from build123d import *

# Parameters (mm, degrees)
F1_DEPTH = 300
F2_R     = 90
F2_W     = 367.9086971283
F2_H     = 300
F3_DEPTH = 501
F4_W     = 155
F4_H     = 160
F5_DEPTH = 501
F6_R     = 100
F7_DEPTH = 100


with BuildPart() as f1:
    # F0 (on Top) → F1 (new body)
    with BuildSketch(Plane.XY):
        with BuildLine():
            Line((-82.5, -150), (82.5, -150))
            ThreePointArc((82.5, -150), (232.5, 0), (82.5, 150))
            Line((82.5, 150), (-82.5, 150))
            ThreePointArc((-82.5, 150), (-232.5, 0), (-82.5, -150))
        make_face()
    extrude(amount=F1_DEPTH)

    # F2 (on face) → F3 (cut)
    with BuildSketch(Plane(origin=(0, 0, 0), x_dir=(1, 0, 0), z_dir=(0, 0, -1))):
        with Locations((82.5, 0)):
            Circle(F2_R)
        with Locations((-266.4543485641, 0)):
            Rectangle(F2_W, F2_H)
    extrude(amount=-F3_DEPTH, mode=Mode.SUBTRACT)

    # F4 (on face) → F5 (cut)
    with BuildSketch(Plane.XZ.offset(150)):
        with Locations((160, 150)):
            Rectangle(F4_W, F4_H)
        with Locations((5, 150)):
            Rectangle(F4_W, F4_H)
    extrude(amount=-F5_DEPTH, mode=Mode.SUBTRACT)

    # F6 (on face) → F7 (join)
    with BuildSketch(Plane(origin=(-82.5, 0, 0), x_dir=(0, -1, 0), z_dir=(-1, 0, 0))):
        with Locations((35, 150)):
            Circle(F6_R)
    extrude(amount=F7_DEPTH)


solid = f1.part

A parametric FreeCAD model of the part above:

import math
import FreeCAD as App
import Part
import Sketcher

V = App.Vector

doc = App.newDocument("Part")
body = doc.addObject("PartDesign::Body", "Body")

sketch1 = body.newObject("Sketcher::SketchObject", "Sketch")
sketch1.AttachmentSupport = (doc.getObject("XY_Plane"), [""])
sketch1.MapMode = "FlatFace"
sketch1.addGeometry(Part.LineSegment(V(-82, -150, 0), V(82, -150, 0)), False)
sketch1.addGeometry(Part.ArcOfCircle(Part.Circle(V(82, 0, 0), V(0, 0, 1), 150), math.radians(-90), math.radians(90)), False)
sketch1.addGeometry(Part.LineSegment(V(82, 150, 0), V(-82, 150, 0)), False)
sketch1.addGeometry(Part.ArcOfCircle(Part.Circle(V(-82, 0, 0), V(0, 0, 1), 150), math.radians(90), math.radians(270)), False)
sketch1.addConstraint(Sketcher.Constraint("Tangent", 0, 2, 1, 1))
sketch1.addConstraint(Sketcher.Constraint("Tangent", 1, 2, 2, 1))
sketch1.addConstraint(Sketcher.Constraint("Tangent", 2, 2, 3, 1))
sketch1.addConstraint(Sketcher.Constraint("Tangent", 3, 2, 0, 1))
sketch1.addConstraint(Sketcher.Constraint("Horizontal", 0))
sketch1.addConstraint(Sketcher.Constraint("Horizontal", 2))
sketch1.addConstraint(Sketcher.Constraint("Symmetric", 1, 3, 3, 3, -1, 1))
sketch1.addConstraint(Sketcher.Constraint("Radius", 1, 150.0))
sketch1.addConstraint(Sketcher.Constraint("DistanceX", 0, 1, 0, 2, 165.0))
pad1 = body.newObject("PartDesign::Pad", "Pad")
pad1.Profile = sketch1
pad1.Length = 300

sketch2 = body.newObject("Sketcher::SketchObject", "Sketch001")
sketch2.AttachmentSupport = (doc.getObject("XY_Plane"), [""])
sketch2.MapMode = "FlatFace"
sketch2.addGeometry(Part.Circle(V(82, 0, 0), V(0, 0, 1), 90), False)
sketch2.addGeometry(Part.LineSegment(V(-450, -150, 0), V(-450, 150, 0)), False)
sketch2.addGeometry(Part.LineSegment(V(-450, 150, 0), V(-82, 150, 0)), False)
sketch2.addGeometry(Part.LineSegment(V(-82, 150, 0), V(-82, -150, 0)), False)
sketch2.addGeometry(Part.LineSegment(V(-82, -150, 0), V(-450, -150, 0)), False)
sketch2.addConstraint(Sketcher.Constraint("Coincident", 1, 2, 2, 1))
sketch2.addConstraint(Sketcher.Constraint("Coincident", 2, 2, 3, 1))
sketch2.addConstraint(Sketcher.Constraint("Coincident", 3, 2, 4, 1))
sketch2.addConstraint(Sketcher.Constraint("Coincident", 4, 2, 1, 1))
sketch2.addConstraint(Sketcher.Constraint("Vertical", 1))
sketch2.addConstraint(Sketcher.Constraint("Horizontal", 2))
sketch2.addConstraint(Sketcher.Constraint("Vertical", 3))
sketch2.addConstraint(Sketcher.Constraint("Horizontal", 4))
sketch2.addConstraint(Sketcher.Constraint("PointOnObject", 0, 3, -1))
sketch2.addConstraint(Sketcher.Constraint("Diameter", 0, 180.0))
sketch2.addConstraint(Sketcher.Constraint("DistanceY", 1, 1, 1, 2, 300.0))
sketch2.addConstraint(Sketcher.Constraint("DistanceY", -1, 1, 1, 2, 150.0))
sketch2.addConstraint(Sketcher.Constraint("DistanceX", 2, 2, 0, 3, 165.0))
sketch2.addConstraint(Sketcher.Constraint("DistanceX", -1, 1, 0, 3, 82.5))
sketch2.addConstraint(Sketcher.Constraint("DistanceX", 2, 1, 2, 2, 367.908697))
pocket1 = body.newObject("PartDesign::Pocket", "Pocket")
pocket1.Profile = sketch2
pocket1.Length = 501
pocket1.Reversed = True

sketch3 = body.newObject("Sketcher::SketchObject", "Sketch002")
sketch3.AttachmentSupport = (doc.getObject("XZ_Plane"), [""])
sketch3.MapMode = "FlatFace"
sketch3.AttachmentOffset = App.Placement(V(0, 0, 150), App.Rotation())
sketch3.addGeometry(Part.LineSegment(V(238, 70, 0), V(238, 230, 0)), False)
sketch3.addGeometry(Part.LineSegment(V(238, 230, 0), V(-72, 230, 0)), False)
sketch3.addGeometry(Part.LineSegment(V(-72, 230, 0), V(-72, 70, 0)), False)
sketch3.addGeometry(Part.LineSegment(V(-72, 70, 0), V(238, 70, 0)), False)
sketch3.addConstraint(Sketcher.Constraint("Coincident", 0, 2, 1, 1))
sketch3.addConstraint(Sketcher.Constraint("Coincident", 1, 2, 2, 1))
sketch3.addConstraint(Sketcher.Constraint("Coincident", 2, 2, 3, 1))
sketch3.addConstraint(Sketcher.Constraint("Coincident", 3, 2, 0, 1))
sketch3.addConstraint(Sketcher.Constraint("Vertical", 0))
sketch3.addConstraint(Sketcher.Constraint("Horizontal", 1))
sketch3.addConstraint(Sketcher.Constraint("Vertical", 2))
sketch3.addConstraint(Sketcher.Constraint("Horizontal", 3))
sketch3.addConstraint(Sketcher.Constraint("DistanceX", 1, 2, 1, 1, 310.0))
sketch3.addConstraint(Sketcher.Constraint("DistanceY", 0, 1, 0, 2, 160.0))
sketch3.addConstraint(Sketcher.Constraint("DistanceY", -1, 1, 0, 2, 230.0))
sketch3.addConstraint(Sketcher.Constraint("DistanceX", -1, 1, 0, 2, 237.5))
pocket2 = body.newObject("PartDesign::Pocket", "Pocket001")
pocket2.Profile = sketch3
pocket2.Length = 501

sketch4 = body.newObject("Sketcher::SketchObject", "Sketch003")
sketch4.AttachmentSupport = (doc.getObject("YZ_Plane"), [""])
sketch4.MapMode = "FlatFace"
sketch4.AttachmentOffset = App.Placement(V(0, 0, -82.5), App.Rotation())
sketch4.addGeometry(Part.Circle(V(-35, 150, 0), V(0, 0, 1), 100), False)
sketch4.addConstraint(Sketcher.Constraint("Diameter", 0, 200.0))
sketch4.addConstraint(Sketcher.Constraint("DistanceX", 0, 3, -1, 1, 35.0))
sketch4.addConstraint(Sketcher.Constraint("DistanceY", -1, 1, 0, 3, 150.0))
pad2 = body.newObject("PartDesign::Pad", "Pad001")
pad2.Profile = sketch4
pad2.Length = 100
pad2.Reversed = True

doc.recompute()
